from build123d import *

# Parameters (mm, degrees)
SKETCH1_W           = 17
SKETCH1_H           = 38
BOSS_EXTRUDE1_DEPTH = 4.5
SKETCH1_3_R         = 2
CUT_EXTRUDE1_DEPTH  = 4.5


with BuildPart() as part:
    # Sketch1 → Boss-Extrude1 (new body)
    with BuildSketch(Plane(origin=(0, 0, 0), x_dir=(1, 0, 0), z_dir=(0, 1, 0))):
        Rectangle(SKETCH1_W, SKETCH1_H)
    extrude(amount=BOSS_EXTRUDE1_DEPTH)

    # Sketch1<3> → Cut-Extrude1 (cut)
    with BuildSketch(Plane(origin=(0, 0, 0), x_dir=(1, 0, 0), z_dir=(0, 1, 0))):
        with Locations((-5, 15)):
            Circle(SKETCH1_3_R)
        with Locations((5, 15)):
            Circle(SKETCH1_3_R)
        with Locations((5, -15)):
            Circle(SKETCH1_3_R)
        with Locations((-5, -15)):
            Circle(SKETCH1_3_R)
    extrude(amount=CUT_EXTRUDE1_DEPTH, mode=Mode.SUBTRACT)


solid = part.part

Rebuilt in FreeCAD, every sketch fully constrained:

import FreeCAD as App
import Part
import Sketcher

V = App.Vector


def add_polygon(sketch, points):
    """Adds a closed chain of lines whose ends are joined by coincident constraints."""
    first, n = sketch.GeometryCount, len(points)
    for a, b in zip(points, points[1:] + points[:1]):
        sketch.addGeometry(Part.LineSegment(App.Vector(*a, 0), App.Vector(*b, 0)), False)
    for i in range(n):
        sketch.addConstraint(Sketcher.Constraint("Coincident", first + i, 2, first + (i + 1) % n, 1))

doc = App.newDocument("Part")
body = doc.addObject("PartDesign::Body", "Body")

# Sketch on XZ plane
sketch1 = doc.addObject("Sketcher::SketchObject", "Sketch")
body.addObject(sketch1)
sketch1.AttachmentSupport = (doc.XZ_Plane, [""])
sketch1.MapMode = "FlatFace"
add_polygon(sketch1, [(-8.5, -19), (-8.5, 19), (8.5, 19), (8.5, -19)])  # lines 0-3
sketch1.addConstraint([
    Sketcher.Constraint("Vertical", 0),
    Sketcher.Constraint("Horizontal", 1),
    Sketcher.Constraint("Vertical", 2),
    Sketcher.Constraint("Horizontal", 3),
    Sketcher.Constraint("Symmetric", 0, 2, 2, 2, -1, 1),
    Sketcher.Constraint("DistanceX", 1, 1, 1, 2, 17.0),
    Sketcher.Constraint("DistanceY", 0, 1, 0, 2, 38.0),
])
pad1 = doc.addObject("PartDesign::Pad", "Pad")
body.addObject(pad1)
pad1.Profile = sketch1
pad1.Length = 4.5
pad1.Reversed = True

# Sketch on XZ plane
sketch2 = doc.addObject("Sketcher::SketchObject", "Sketch001")
body.addObject(sketch2)
sketch2.AttachmentSupport = (doc.XZ_Plane, [""])
sketch2.MapMode = "FlatFace"
sketch2.addGeometry([
    Part.Circle(V(-5, -15, 0), V(0, 0, 1), 2),
    Part.Circle(V(5, -15, 0), V(0, 0, 1), 2),
    Part.Circle(V(5, 15, 0), V(0, 0, 1), 2),
    Part.Circle(V(-5, 15, 0), V(0, 0, 1), 2),
], False)
sketch2.addConstraint([
    Sketcher.Constraint("Equal", 0, 1),
    Sketcher.Constraint("Equal", 1, 2),
    Sketcher.Constraint("Equal", 2, 3),
    Sketcher.Constraint("Symmetric", 0, 3, 2, 3, -1, 1),
    Sketcher.Constraint("Symmetric", 1, 3, 3, 3, -1, 1),
    Sketcher.Constraint("Symmetric", 0, 3, 1, 3, -2),
    Sketcher.Constraint("Diameter", 0, 4.0),
    Sketcher.Constraint("DistanceX", 0, 3, -1, 1, 5.0),
    Sketcher.Constraint("DistanceY", 0, 3, -1, 1, 15.0),
])
pocket1 = doc.addObject("PartDesign::Pocket", "Pocket")
body.addObject(pocket1)
pocket1.Profile = sketch2
pocket1.Length = 4.5

doc.recompute()
